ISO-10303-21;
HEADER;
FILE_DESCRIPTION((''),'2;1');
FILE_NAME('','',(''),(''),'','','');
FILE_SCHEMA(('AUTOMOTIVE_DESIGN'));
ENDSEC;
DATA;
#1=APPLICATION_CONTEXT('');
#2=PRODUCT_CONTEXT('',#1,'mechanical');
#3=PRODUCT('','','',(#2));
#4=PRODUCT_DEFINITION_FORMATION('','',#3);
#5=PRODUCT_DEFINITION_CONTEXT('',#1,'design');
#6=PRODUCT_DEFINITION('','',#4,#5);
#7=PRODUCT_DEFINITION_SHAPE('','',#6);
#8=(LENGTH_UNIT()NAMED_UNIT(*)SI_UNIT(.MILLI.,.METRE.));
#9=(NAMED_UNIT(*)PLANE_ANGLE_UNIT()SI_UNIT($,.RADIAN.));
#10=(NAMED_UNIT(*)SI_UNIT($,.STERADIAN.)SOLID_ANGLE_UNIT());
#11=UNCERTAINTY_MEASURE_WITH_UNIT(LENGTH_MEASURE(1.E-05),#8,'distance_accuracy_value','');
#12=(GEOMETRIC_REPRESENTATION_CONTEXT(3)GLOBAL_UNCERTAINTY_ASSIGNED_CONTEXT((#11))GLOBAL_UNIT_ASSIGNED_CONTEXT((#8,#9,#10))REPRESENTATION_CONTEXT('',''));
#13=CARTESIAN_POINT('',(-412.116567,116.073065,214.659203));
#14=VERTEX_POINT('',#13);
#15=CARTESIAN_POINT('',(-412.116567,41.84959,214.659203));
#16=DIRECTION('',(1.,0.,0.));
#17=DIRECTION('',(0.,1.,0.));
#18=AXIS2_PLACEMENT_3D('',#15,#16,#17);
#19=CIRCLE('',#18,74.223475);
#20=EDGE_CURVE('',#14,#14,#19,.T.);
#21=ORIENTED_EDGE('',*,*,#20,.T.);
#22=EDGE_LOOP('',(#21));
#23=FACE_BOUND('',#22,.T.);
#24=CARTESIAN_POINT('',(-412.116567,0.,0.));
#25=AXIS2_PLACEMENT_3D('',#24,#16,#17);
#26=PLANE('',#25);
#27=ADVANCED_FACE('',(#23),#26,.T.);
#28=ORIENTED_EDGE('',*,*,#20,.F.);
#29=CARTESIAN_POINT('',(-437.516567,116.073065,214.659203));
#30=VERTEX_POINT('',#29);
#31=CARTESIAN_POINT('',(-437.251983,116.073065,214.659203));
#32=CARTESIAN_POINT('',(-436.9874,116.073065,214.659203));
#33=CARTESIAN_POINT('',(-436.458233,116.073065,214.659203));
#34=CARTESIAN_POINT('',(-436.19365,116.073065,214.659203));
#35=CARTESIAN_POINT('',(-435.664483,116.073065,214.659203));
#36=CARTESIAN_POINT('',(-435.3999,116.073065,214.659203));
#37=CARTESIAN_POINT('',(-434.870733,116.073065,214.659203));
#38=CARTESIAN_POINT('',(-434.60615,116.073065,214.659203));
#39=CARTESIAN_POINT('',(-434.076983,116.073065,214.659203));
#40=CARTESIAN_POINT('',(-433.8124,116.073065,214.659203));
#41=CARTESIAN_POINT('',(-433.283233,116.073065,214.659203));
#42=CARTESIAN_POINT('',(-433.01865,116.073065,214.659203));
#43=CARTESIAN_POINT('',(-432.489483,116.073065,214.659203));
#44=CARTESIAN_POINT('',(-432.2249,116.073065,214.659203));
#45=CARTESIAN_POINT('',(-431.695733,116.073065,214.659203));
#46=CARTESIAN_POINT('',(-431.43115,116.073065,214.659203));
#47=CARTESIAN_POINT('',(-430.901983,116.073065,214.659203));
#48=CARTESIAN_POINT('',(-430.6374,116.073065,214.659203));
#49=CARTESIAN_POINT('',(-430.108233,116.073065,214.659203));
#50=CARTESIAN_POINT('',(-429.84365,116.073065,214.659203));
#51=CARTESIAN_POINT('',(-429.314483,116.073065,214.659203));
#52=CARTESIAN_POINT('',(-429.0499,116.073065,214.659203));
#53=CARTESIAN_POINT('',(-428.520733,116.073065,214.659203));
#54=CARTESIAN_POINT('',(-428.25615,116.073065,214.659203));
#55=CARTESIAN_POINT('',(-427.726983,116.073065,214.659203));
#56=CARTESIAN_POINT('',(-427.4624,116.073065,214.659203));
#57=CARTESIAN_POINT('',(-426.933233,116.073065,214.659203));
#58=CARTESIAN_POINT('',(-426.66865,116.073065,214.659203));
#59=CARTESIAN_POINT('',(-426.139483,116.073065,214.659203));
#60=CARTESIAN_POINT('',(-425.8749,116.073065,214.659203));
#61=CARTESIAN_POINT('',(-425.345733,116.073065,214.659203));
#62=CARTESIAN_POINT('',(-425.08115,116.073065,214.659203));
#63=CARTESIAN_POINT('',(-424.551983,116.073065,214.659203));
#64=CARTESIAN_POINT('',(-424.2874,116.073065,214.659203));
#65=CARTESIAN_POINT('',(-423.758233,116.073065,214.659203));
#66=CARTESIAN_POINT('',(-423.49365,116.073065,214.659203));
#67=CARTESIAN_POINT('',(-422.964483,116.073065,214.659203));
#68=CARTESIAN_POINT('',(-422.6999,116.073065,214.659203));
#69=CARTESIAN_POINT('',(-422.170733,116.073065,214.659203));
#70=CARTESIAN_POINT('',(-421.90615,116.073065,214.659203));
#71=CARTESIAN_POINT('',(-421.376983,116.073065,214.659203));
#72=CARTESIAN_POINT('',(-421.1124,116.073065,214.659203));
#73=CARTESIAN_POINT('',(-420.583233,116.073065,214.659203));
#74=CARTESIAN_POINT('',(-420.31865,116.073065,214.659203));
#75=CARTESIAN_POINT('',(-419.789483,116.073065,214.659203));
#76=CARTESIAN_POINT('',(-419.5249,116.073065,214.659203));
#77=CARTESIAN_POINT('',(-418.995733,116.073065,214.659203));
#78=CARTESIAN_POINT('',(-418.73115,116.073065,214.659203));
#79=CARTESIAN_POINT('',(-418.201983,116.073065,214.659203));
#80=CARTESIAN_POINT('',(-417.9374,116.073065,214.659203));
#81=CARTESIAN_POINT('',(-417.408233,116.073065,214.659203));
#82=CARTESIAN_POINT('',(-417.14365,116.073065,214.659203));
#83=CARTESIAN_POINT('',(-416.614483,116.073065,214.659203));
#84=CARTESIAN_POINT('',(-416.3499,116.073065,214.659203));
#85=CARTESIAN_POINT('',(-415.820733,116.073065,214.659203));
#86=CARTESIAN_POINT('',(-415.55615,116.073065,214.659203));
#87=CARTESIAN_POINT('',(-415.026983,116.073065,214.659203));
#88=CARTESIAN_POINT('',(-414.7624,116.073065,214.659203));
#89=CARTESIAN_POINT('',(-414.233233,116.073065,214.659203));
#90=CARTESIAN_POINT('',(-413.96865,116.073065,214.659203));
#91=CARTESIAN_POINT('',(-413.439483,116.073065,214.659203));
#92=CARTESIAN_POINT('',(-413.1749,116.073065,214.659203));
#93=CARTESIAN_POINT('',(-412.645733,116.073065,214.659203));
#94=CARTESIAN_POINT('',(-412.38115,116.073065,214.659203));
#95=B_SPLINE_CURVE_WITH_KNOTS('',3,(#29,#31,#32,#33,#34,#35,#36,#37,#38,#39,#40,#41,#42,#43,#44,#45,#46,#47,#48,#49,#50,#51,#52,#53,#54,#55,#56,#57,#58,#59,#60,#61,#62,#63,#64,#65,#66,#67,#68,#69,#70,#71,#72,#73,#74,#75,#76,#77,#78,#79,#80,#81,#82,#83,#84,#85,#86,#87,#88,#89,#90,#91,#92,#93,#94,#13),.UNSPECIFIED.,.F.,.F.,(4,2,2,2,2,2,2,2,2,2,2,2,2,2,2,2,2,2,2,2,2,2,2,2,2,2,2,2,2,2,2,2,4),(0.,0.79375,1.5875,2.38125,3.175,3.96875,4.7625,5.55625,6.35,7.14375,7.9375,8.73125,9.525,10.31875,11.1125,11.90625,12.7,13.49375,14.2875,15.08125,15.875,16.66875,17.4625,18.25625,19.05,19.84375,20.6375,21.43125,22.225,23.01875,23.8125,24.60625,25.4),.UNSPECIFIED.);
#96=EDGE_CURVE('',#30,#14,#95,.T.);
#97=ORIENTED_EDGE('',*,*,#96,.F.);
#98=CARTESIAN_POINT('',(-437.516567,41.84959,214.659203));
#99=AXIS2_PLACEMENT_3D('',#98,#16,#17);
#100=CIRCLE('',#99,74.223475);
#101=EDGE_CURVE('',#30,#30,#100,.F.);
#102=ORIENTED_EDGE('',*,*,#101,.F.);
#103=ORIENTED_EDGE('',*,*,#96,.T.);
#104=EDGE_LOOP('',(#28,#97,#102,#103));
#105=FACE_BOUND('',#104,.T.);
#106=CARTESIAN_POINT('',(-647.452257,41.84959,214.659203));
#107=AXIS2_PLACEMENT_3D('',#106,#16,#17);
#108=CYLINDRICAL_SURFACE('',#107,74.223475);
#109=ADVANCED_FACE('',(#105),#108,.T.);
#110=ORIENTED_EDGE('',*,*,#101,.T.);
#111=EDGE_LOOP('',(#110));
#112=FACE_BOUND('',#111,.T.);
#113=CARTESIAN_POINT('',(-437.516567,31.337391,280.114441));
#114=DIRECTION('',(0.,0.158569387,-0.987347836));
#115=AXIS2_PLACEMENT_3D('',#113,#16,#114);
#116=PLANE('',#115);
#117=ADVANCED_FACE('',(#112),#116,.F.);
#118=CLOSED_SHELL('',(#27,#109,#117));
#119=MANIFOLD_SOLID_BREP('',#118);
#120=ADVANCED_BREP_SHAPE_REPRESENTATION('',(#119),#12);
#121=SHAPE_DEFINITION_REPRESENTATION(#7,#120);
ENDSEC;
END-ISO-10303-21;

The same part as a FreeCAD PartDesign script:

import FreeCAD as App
import Part
import Sketcher
from FreeCAD import Vector
Q = App.Units.Quantity

doc = App.newDocument("Part")
body = doc.addObject("PartDesign::Body", "Body")

# Sketch on YZ plane
sketch1 = body.newObject("Sketcher::SketchObject", "Sketch")
sketch1.AttachmentSupport = (doc.getObject("YZ_Plane"), [""])
sketch1.MapMode = "FlatFace"
sketch1.AttachmentOffset = App.Placement(Vector(0, 0, -412.116567), App.Rotation())
sketch1.addGeometry(Part.Circle(Vector(41.84959, 214.659203, 0), Vector(0, 0, 1), 74.223475), False)
sketch1.addConstraint(Sketcher.Constraint("Diameter", 0, 148.446951))
sketch1.addConstraint(Sketcher.Constraint("DistanceX", -1, 1, 0, 3, 41.84959))
sketch1.addConstraint(Sketcher.Constraint("DistanceY", -1, 1, 0, 3, 214.659203))
pad1 = body.newObject("PartDesign::Pad", "Pad")
pad1.Profile = sketch1
pad1.Length = Q("1 in")
pad1.Reversed = True

doc.recompute()
